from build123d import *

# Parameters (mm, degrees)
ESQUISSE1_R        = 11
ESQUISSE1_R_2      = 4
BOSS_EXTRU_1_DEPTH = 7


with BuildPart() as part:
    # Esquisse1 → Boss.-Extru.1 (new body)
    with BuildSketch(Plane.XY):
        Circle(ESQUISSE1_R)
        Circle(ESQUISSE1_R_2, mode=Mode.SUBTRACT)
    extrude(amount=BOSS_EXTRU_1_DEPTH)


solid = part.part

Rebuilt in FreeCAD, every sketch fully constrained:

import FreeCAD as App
import Part
import Sketcher

V = App.Vector

doc = App.newDocument("Part")
body = doc.addObject("PartDesign::Body", "Body")

# Sketch on XY plane
sketch1 = body.newObject("Sketcher::SketchObject", "Sketch")
sketch1.AttachmentSupport = (doc.getObject("XY_Plane"), [""])
sketch1.MapMode = "FlatFace"
sketch1.addGeometry([
    Part.Circle(V(0, 0, 0), V(0, 0, 1), 11),
    Part.Circle(V(0, 0, 0), V(0, 0, 1), 4),
], False)
sketch1.addConstraint([
    Sketcher.Constraint("Coincident", 0, 3, -1, 1),
    Sketcher.Constraint("Coincident", 1, 3, -1, 1),
    Sketcher.Constraint("Diameter", 0, 22.0),
    Sketcher.Constraint("Diameter", 1, 8.0),
])
pad1 = body.newObject("PartDesign::Pad", "Pad")
pad1.Profile = sketch1
pad1.Length = 7

doc.recompute()
